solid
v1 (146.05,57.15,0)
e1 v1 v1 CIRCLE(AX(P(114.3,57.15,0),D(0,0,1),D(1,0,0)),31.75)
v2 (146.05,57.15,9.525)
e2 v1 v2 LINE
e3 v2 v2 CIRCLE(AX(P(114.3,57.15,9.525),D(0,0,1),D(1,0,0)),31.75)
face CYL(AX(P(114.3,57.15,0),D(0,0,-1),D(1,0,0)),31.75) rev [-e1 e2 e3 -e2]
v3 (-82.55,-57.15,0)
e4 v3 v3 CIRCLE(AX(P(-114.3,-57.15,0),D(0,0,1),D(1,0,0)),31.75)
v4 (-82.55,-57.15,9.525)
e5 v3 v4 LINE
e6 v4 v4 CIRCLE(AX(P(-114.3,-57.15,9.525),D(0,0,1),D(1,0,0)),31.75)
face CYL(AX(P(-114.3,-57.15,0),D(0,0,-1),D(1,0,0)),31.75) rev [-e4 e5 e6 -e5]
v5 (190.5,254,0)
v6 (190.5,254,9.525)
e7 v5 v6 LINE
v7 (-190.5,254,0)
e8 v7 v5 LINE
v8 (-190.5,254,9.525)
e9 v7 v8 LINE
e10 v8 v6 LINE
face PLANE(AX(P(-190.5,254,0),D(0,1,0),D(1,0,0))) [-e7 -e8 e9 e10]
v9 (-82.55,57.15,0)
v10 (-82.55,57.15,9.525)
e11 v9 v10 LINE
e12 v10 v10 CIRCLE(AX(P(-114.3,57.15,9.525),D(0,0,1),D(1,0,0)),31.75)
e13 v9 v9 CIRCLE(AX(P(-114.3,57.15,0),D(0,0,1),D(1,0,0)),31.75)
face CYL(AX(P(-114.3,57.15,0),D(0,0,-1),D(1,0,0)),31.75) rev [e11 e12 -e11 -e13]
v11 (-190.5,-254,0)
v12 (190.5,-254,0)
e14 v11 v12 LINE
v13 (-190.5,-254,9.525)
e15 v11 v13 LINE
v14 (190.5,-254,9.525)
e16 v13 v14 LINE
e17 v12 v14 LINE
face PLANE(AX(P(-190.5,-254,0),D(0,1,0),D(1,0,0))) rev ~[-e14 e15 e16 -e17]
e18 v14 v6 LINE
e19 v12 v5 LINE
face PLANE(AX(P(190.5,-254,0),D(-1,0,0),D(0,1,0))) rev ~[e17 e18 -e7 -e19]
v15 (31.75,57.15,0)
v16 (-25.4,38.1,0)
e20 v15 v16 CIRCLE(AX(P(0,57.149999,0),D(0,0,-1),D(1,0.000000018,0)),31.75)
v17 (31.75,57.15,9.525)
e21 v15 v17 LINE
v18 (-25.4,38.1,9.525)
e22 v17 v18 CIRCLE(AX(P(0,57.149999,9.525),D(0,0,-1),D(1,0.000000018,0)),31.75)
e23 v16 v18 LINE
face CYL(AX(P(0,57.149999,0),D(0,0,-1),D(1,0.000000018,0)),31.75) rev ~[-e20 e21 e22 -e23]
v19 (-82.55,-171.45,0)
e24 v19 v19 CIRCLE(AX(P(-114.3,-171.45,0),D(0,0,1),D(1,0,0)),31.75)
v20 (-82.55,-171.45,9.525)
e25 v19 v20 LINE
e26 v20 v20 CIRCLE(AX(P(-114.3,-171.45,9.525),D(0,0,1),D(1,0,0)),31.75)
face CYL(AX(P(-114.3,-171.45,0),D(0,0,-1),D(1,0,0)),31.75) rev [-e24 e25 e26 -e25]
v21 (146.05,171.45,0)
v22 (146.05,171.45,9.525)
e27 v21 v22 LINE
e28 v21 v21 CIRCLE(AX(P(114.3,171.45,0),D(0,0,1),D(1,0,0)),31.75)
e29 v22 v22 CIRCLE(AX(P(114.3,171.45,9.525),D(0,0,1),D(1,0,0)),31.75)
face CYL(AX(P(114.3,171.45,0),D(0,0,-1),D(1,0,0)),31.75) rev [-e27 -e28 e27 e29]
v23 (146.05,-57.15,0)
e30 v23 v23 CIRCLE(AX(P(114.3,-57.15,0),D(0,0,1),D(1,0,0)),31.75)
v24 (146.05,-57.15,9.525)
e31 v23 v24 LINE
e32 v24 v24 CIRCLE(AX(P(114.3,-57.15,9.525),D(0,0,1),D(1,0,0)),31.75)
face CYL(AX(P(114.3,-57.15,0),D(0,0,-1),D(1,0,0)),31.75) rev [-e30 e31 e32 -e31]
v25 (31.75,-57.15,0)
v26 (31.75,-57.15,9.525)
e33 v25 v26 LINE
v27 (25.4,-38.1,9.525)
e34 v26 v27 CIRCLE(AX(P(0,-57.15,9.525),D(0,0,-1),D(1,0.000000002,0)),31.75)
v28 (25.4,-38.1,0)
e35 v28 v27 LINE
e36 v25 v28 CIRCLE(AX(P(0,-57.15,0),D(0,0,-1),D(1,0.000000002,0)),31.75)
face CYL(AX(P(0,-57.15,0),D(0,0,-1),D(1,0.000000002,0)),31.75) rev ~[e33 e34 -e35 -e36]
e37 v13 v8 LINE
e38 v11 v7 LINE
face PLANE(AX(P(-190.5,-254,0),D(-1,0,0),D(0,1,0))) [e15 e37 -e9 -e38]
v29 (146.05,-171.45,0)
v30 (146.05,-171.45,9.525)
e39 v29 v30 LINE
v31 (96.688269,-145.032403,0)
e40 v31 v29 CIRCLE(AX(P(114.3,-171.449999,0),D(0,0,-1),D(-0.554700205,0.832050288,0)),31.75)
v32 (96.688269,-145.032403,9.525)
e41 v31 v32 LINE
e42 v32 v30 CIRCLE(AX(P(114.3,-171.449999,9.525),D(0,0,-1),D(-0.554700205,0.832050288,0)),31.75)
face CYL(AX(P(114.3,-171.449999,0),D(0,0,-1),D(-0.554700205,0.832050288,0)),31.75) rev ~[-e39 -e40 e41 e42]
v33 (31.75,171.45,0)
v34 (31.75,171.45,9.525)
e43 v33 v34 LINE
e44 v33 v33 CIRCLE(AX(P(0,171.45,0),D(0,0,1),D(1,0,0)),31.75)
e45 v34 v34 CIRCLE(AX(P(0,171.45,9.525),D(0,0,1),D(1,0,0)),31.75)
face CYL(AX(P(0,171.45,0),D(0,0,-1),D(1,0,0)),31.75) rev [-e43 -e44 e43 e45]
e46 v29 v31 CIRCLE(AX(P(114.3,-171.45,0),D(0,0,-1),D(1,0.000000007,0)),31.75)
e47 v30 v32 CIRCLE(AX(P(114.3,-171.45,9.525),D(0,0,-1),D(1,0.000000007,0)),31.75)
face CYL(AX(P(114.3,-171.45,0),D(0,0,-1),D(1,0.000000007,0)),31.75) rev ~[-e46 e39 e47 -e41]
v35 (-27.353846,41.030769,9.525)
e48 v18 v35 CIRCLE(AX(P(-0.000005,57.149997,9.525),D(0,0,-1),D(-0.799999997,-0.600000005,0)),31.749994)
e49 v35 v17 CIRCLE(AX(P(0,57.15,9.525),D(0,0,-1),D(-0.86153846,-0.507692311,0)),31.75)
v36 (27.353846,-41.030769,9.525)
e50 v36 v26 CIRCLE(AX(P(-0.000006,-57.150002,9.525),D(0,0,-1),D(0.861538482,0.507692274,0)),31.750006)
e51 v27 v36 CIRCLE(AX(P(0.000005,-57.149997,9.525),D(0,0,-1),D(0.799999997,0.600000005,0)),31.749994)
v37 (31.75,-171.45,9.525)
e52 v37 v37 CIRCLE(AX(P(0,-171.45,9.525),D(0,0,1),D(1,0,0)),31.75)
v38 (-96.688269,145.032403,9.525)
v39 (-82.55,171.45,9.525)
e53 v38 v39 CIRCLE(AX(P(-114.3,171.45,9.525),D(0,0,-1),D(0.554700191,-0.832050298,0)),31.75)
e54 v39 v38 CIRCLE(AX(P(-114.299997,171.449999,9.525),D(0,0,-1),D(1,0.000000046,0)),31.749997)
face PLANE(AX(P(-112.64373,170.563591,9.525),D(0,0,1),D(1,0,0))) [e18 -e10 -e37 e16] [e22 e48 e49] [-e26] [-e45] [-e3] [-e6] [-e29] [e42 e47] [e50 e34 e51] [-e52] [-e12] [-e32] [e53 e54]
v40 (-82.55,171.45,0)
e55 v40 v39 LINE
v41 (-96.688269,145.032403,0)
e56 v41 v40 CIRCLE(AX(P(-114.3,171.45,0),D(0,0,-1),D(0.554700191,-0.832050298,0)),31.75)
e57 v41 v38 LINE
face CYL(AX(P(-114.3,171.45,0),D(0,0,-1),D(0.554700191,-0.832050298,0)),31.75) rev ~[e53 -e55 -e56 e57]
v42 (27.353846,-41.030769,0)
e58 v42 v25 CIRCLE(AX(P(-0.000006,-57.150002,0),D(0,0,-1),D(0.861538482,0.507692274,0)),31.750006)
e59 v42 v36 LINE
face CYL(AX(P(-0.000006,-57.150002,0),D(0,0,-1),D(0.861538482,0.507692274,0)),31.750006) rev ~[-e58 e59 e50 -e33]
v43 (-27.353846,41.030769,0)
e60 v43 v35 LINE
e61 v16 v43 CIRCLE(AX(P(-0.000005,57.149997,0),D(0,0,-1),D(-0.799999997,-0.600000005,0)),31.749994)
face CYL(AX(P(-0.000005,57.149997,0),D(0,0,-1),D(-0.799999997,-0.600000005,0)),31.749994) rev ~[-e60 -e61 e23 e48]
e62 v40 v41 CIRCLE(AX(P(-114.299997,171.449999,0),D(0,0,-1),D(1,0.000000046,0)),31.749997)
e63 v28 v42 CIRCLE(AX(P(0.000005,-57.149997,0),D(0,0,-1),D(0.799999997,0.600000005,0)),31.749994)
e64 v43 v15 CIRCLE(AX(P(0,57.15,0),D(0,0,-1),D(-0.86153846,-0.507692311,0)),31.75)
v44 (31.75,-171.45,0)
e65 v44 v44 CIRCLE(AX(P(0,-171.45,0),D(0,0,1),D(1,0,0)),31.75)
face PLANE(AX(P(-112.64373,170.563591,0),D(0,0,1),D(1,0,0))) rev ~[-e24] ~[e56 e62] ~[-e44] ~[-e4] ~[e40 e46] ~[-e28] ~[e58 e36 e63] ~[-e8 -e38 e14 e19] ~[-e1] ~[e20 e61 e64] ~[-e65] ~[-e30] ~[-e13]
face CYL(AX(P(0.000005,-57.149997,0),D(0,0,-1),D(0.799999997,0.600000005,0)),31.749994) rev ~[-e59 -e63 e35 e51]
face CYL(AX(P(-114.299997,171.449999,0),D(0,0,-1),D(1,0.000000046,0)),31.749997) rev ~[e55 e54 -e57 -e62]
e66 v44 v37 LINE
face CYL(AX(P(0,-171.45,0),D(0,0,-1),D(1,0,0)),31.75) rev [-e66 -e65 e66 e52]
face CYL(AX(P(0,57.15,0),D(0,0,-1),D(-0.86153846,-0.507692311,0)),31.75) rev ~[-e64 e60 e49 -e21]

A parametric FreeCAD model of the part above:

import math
import FreeCAD as App
import Part
import Sketcher
from FreeCAD import Vector
Q = App.Units.Quantity

doc = App.newDocument("Part")
body = doc.addObject("PartDesign::Body", "Body")

# Sketch on XY plane
sketch1 = body.newObject("Sketcher::SketchObject", "Sketch")
sketch1.AttachmentSupport = (doc.getObject("XY_Plane"), [""])
sketch1.MapMode = "FlatFace"
sketch1.addGeometry([
    Part.LineSegment(Vector(-190.5, 254, 0), Vector(-190.5, -254, 0)),  # 0
    Part.LineSegment(Vector(-190.5, -254, 0), Vector(190.5, -254, 0)),  # 1
    Part.LineSegment(Vector(190.5, -254, 0), Vector(190.5, 254, 0)),  # 2
    Part.LineSegment(Vector(190.5, 254, 0), Vector(-190.5, 254, 0)),  # 3
    Part.Circle(Vector(-114.3, -171.4, 0), Vector(0, 0, 1), 31.8),  # 4
    Part.Circle(Vector(-114.3, -57.1, 0), Vector(0, 0, 1), 31.8),  # 5
    Part.ArcOfCircle(Part.Circle(Vector(0, -57.2, 0), Vector(0, 0, 1), 31.8), math.radians(0), math.radians(31)),  # 6
    Part.ArcOfCircle(Part.Circle(Vector(0, -57.2, 0), Vector(0, 0, 1), 31.8), math.radians(37), math.radians(360)),  # 7
    Part.ArcOfCircle(Part.Circle(Vector(0, -57.1, 0), Vector(0, 0, 1), 31.7), math.radians(30.51), math.radians(36.87)),  # 8
    Part.Circle(Vector(0, -171.4, 0), Vector(0, 0, 1), 31.8),  # 9
    Part.ArcOfCircle(Part.Circle(Vector(114.3, -171.4, 0), Vector(0, 0, 1), 31.7), math.radians(0), math.radians(124)),  # 10
    Part.ArcOfCircle(Part.Circle(Vector(114.3, -171.5, 0), Vector(0, 0, 1), 31.8), math.radians(124), math.radians(360)),  # 11
    Part.Circle(Vector(114.3, -57.1, 0), Vector(0, 0, 1), 31.8),  # 12
    Part.Circle(Vector(-114.3, 57.1, 0), Vector(0, 0, 1), 31.8),  # 13
    Part.ArcOfCircle(Part.Circle(Vector(-114.3, 171.4, 0), Vector(0, 0, 1), 31.7), math.radians(-56), math.radians(0)),  # 14
    Part.ArcOfCircle(Part.Circle(Vector(-114.3, 171.5, 0), Vector(0, 0, 1), 31.8), math.radians(0), math.radians(304)),  # 15
    Part.ArcOfCircle(Part.Circle(Vector(0, 57.1, 0), Vector(0, 0, 1), 31.7), math.radians(-143), math.radians(0)),  # 16
    Part.ArcOfCircle(Part.Circle(Vector(0, 57.1, 0), Vector(0, 0, 1), 31.7), math.radians(-149.49), math.radians(-143.13)),  # 17
    Part.ArcOfCircle(Part.Circle(Vector(0, 57.1, 0), Vector(0, 0, 1), 31.7), math.radians(0), math.radians(211)),  # 18
    Part.Circle(Vector(114.3, 57.1, 0), Vector(0, 0, 1), 31.8),  # 19
    Part.Circle(Vector(0, 171.4, 0), Vector(0, 0, 1), 31.8),  # 20
    Part.Circle(Vector(114.3, 171.4, 0), Vector(0, 0, 1), 31.8),  # 21
], False)
sketch1.addConstraint([
    Sketcher.Constraint("Coincident", 0, 2, 1, 1),
    Sketcher.Constraint("Coincident", 1, 2, 2, 1),
    Sketcher.Constraint("Coincident", 2, 2, 3, 1),
    Sketcher.Constraint("Coincident", 3, 2, 0, 1),
    Sketcher.Constraint("Tangent", 6, 1, 7, 2),
    Sketcher.Constraint("Tangent", 7, 1, 8, 2),
    Sketcher.Constraint("Tangent", 8, 1, 6, 2),
    Sketcher.Constraint("Tangent", 10, 1, 11, 2),
    Sketcher.Constraint("Coincident", 11, 1, 10, 2),
    Sketcher.Constraint("Tangent", 14, 1, 15, 2),
    Sketcher.Constraint("Coincident", 15, 1, 14, 2),
    Sketcher.Constraint("Tangent", 16, 1, 17, 2),
    Sketcher.Constraint("Tangent", 17, 1, 18, 2),
    Sketcher.Constraint("Tangent", 18, 1, 16, 2),
    Sketcher.Constraint("Vertical", 0),
    Sketcher.Constraint("Horizontal", 1),
    Sketcher.Constraint("Vertical", 2),
    Sketcher.Constraint("Horizontal", 3),
    Sketcher.Constraint("Equal", 4, 5),
    Sketcher.Constraint("Equal", 5, 7),
    Sketcher.Constraint("Equal", 7, 9),
    Sketcher.Constraint("Equal", 9, 10),
    Sketcher.Constraint("Equal", 11, 12),
    Sketcher.Constraint("Equal", 12, 13),
    Sketcher.Constraint("Equal", 13, 15),
    Sketcher.Constraint("Equal", 15, 16),
    Sketcher.Constraint("Equal", 18, 19),
    Sketcher.Constraint("Equal", 19, 20),
    Sketcher.Constraint("Equal", 20, 21),
    Sketcher.Constraint("Symmetric", 12, 3, 13, 3, -1, 1),
    Sketcher.Constraint("Symmetric", 10, 3, 14, 3, -1, 1),
    Sketcher.Constraint("Symmetric", 6, 3, 16, 3, -1, 1),
    Sketcher.Constraint("Symmetric", 5, 3, 19, 3, -1, 1),
    Sketcher.Constraint("Symmetric", 9, 3, 20, 3, -1, 1),
    Sketcher.Constraint("Symmetric", 4, 3, 21, 3, -1, 1),
    Sketcher.Constraint("Symmetric", 0, 2, 2, 2, -1, 1),
    Sketcher.Constraint("Symmetric", 4, 3, 10, 3, -2),
    Sketcher.Constraint("Symmetric", 5, 3, 12, 3, -2),
    Sketcher.Constraint("Symmetric", 6, 1, 18, 1, -1),
    Sketcher.Constraint("PointOnObject", 9, 3, -2),
    Sketcher.Constraint("Horizontal", 5, 3, 6, 3),
    Sketcher.Constraint("Horizontal", 4, 3, 9, 3),
    Sketcher.Constraint("Horizontal", 12, 3, 6, 1),
    Sketcher.Constraint("Horizontal", 11, 3, 10, 1),
    Sketcher.Constraint("Horizontal", 21, 3, 15, 1),
    Sketcher.Constraint("Vertical", 4, 3, 5, 3),
    Sketcher.Constraint("Diameter", 4, Q("2.5 in")),
    Sketcher.Constraint("DistanceX", 1, 1, 1, 2, Q("15 in")),
    Sketcher.Constraint("DistanceY", 0, 2, 0, 1, Q("20 in")),
    Sketcher.Constraint("DistanceX", -1, 1, 7, 1, Q("1 in")),
    Sketcher.Constraint("DistanceX", 16, 1, -1, 1, Q("1 in")),
    Sketcher.Constraint("DistanceX", 4, 3, 10, 3, Q("9 in")),
    Sketcher.Constraint("DistanceY", 4, 3, 13, 3, Q("9 in")),
    Sketcher.Constraint("DistanceY", 7, 1, 16, 1, Q("3 in")),
    Sketcher.Constraint("DistanceY", 8, 1, -1, 1, 41.030769),
    Sketcher.Constraint("DistanceX", -1, 1, 11, 1, 96.688269),
    Sketcher.Constraint("DistanceX", 14, 1, -1, 1, 96.688269),
    Sketcher.Constraint("DistanceY", -1, 1, 17, 1, 41.030769),
])
pad1 = body.newObject("PartDesign::Pad", "Pad")
pad1.Profile = sketch1
pad1.Length = Q("0.375 in")

doc.recompute()
